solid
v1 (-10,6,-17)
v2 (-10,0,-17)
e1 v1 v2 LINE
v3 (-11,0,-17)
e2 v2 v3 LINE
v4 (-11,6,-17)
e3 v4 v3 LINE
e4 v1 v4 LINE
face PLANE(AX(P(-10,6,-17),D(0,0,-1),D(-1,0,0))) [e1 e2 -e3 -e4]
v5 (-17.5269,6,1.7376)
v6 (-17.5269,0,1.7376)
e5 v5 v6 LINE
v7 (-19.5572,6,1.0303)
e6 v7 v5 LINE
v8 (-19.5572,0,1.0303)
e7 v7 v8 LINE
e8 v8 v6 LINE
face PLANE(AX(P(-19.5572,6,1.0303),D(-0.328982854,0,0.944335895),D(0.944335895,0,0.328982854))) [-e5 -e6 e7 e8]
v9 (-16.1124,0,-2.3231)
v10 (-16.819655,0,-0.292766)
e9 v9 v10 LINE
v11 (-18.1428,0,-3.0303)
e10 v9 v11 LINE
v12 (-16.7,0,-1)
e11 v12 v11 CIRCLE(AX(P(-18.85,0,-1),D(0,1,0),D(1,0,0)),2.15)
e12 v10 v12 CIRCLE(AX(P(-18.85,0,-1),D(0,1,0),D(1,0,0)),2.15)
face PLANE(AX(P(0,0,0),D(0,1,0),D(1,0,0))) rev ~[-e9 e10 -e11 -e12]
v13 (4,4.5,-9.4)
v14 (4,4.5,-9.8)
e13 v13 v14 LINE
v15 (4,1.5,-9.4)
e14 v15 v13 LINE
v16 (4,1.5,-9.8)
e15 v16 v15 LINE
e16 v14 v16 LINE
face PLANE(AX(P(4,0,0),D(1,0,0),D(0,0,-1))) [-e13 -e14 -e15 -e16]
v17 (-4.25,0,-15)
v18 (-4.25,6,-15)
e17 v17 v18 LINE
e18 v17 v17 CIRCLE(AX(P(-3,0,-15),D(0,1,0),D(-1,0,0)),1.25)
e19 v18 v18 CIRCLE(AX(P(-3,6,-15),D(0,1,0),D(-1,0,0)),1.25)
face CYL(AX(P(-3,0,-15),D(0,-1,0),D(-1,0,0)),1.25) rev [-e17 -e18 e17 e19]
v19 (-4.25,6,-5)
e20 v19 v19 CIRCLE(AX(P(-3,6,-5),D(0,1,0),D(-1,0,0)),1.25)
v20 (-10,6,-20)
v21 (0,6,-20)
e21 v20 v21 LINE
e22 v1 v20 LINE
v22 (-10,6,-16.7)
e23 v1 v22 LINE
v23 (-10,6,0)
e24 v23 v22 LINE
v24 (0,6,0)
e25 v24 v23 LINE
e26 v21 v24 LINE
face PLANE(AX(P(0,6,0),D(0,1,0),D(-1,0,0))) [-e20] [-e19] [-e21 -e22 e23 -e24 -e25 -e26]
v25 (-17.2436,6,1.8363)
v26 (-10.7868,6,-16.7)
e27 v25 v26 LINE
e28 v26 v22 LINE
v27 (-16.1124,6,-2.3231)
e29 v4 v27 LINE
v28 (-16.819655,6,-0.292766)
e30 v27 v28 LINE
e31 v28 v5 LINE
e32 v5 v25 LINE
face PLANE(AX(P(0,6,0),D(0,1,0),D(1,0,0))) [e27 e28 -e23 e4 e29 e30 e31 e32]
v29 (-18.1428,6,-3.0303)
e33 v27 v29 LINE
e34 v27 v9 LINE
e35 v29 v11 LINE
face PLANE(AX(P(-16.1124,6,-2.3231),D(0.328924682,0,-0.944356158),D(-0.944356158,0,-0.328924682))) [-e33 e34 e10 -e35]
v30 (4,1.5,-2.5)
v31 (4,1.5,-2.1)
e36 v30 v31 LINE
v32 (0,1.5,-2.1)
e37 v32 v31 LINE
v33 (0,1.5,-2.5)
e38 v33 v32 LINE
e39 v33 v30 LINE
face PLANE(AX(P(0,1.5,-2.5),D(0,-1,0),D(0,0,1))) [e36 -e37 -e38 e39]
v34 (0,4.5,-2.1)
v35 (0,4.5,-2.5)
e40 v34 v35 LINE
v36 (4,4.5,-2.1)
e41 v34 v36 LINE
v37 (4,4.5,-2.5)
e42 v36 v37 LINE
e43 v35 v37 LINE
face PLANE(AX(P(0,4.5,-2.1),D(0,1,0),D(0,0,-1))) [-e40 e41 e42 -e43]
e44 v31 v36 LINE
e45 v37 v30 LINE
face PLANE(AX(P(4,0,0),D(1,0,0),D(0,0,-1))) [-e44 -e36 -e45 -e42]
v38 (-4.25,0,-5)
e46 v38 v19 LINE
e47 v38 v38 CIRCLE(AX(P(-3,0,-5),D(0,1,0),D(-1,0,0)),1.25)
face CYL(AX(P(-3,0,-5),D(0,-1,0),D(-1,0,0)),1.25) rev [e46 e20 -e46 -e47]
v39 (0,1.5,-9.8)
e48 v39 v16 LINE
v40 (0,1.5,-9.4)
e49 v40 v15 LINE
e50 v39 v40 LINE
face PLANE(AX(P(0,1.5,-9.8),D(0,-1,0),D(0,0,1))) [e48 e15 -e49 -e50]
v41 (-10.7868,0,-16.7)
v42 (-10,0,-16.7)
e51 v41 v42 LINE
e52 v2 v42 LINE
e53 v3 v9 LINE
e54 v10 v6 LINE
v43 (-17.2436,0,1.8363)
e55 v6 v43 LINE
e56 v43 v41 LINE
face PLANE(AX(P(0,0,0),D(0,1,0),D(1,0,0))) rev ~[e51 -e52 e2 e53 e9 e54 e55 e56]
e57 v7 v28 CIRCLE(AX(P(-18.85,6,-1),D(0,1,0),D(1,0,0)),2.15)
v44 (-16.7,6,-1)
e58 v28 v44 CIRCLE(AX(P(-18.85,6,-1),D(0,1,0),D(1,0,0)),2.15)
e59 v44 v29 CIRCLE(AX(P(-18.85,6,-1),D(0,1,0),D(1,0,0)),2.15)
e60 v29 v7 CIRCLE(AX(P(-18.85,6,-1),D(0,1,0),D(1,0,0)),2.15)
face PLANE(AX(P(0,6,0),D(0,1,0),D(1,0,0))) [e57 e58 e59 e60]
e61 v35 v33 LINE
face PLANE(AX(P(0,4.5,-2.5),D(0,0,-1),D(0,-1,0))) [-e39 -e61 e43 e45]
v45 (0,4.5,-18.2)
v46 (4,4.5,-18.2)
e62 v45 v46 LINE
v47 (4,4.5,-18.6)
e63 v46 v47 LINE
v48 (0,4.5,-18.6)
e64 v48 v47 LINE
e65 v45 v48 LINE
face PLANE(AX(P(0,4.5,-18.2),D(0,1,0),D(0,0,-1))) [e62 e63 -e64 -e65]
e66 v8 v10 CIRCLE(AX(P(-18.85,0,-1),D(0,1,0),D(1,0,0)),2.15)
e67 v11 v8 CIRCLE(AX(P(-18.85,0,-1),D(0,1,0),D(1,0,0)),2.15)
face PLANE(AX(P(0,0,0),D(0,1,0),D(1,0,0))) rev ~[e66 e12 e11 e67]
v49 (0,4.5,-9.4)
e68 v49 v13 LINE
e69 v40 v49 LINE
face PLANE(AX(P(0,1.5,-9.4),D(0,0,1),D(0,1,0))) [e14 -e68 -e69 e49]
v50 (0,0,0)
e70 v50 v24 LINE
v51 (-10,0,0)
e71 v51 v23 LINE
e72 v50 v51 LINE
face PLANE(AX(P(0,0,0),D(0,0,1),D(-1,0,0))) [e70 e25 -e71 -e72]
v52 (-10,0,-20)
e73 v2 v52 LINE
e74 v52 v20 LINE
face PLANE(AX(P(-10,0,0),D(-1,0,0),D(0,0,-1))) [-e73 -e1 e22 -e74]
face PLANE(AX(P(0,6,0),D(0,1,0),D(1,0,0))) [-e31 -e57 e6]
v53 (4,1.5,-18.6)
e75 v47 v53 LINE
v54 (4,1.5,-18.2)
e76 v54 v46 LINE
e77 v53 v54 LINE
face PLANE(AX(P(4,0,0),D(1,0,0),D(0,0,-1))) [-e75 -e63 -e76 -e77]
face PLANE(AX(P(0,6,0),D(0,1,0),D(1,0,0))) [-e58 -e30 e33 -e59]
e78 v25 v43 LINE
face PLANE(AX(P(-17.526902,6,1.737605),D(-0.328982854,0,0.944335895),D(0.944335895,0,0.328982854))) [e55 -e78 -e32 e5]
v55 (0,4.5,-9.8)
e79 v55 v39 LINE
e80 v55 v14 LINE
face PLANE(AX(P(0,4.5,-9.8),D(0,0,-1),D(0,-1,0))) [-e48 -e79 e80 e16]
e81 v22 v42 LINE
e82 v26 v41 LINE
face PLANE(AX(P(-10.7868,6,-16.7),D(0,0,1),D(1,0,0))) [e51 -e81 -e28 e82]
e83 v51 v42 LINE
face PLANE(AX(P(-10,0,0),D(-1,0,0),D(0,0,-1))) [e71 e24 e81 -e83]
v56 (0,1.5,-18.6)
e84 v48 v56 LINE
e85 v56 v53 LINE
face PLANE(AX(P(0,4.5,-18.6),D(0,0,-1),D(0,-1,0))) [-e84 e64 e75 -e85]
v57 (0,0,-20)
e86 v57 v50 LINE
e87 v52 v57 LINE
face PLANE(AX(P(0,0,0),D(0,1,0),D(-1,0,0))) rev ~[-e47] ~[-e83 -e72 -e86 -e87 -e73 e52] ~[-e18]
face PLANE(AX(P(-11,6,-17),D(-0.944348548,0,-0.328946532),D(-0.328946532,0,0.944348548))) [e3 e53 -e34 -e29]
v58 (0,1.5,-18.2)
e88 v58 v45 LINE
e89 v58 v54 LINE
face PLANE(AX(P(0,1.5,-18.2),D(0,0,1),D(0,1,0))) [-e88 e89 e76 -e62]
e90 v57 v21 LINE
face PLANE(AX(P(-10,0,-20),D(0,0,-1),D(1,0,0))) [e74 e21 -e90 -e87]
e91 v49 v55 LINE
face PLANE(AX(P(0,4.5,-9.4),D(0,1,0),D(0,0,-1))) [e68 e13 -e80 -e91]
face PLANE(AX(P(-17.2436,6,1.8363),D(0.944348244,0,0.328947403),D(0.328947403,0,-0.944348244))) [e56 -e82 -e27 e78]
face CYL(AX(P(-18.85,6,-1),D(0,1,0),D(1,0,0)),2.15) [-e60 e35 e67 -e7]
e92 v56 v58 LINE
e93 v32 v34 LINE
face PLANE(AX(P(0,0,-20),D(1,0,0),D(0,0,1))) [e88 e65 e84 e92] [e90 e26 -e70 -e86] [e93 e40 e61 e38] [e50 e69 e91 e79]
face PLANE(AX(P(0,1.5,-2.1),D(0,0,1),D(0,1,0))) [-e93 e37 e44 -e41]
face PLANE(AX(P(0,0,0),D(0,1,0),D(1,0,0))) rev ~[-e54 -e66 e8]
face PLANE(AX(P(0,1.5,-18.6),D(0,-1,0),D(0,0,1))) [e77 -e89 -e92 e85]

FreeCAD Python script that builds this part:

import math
import FreeCAD as App
import Part
import Sketcher

V = App.Vector
Q = App.Units.Quantity


def add_polygon(sketch, points):
    """Adds a closed chain of lines whose ends are joined by coincident constraints."""
    first, n = sketch.GeometryCount, len(points)
    for a, b in zip(points, points[1:] + points[:1]):
        sketch.addGeometry(Part.LineSegment(App.Vector(*a, 0), App.Vector(*b, 0)), False)
    for i in range(n):
        sketch.addConstraint(Sketcher.Constraint("Coincident", first + i, 2, first + (i + 1) % n, 1))

doc = App.newDocument("Part")
body = doc.addObject("PartDesign::Body", "Body")

# Sketch on XZ plane
sketch1 = doc.addObject("Sketcher::SketchObject", "Sketch")
body.addObject(sketch1)
sketch1.AttachmentSupport = (doc.XZ_Plane, [""])
sketch1.MapMode = "FlatFace"
add_polygon(sketch1, [(-10, 0), (0, 0), (0, -20), (-10, -20)])  # lines 0-3
sketch1.addGeometry(Part.Circle(V(-3, -15, 0), V(0, 0, 1), 1.25), False)  # 4
sketch1.addGeometry(Part.Circle(V(-3, -5, 0), V(0, 0, 1), 1.25), False)  # 5
sketch1.addConstraint([
    Sketcher.Constraint("Horizontal", 0),
    Sketcher.Constraint("Vertical", 1),
    Sketcher.Constraint("Horizontal", 2),
    Sketcher.Constraint("Vertical", 3),
    Sketcher.Constraint("Coincident", 0, 2, -1, 1),
    Sketcher.Constraint("Equal", 4, 5),
    Sketcher.Constraint("Vertical", 4, 3, 5, 3),
    Sketcher.Constraint("Diameter", 4, Q("2.5 mm")),
    Sketcher.Constraint("DistanceX", 0, 1, 0, 2, Q("10 mm")),
    Sketcher.Constraint("DistanceY", 1, 2, 1, 1, Q("20 mm")),
    Sketcher.Constraint("DistanceX", 4, 3, -1, 1, Q("3 mm")),
    Sketcher.Constraint("DistanceY", 5, 3, -1, 1, Q("5 mm")),
    Sketcher.Constraint("DistanceY", 4, 3, 5, 3, Q("10 mm")),
])
pad1 = doc.addObject("PartDesign::Pad", "Pad")
body.addObject(pad1)
pad1.Profile = sketch1
pad1.Length = 6
pad1.Reversed = True

# Sketch on XZ plane
sketch2 = doc.addObject("Sketcher::SketchObject", "Sketch001")
body.addObject(sketch2)
sketch2.AttachmentSupport = (doc.XZ_Plane, [""])
sketch2.MapMode = "FlatFace"
sketch2.AttachmentOffset = App.Placement(V(0, 0, -6), App.Rotation())
sketch2.addGeometry([
    Part.LineSegment(V(-10, -16.7, 0), V(-10, -17, 0)),  # 0
    Part.LineSegment(V(-10, -17, 0), V(-11, -17, 0)),  # 1
    Part.LineSegment(V(-11, -17, 0), V(-16.112426, -2.323109, 0)),  # 2
    Part.LineSegment(V(-16.1124, -2.3231, 0), V(-18.1428, -3.0303, 0)),  # 3
    Part.ArcOfCircle(Part.Circle(V(-18.85, -1, 0), V(0, 0, 1), 2.15), math.radians(109.204398), math.radians(289.204398)),  # 4
    Part.LineSegment(V(-19.5572, 1.0303, 0), V(-17.2436, 1.8363, 0)),  # 5
    Part.LineSegment(V(-17.2436, 1.8363, 0), V(-10.7868, -16.7, 0)),  # 6
    Part.LineSegment(V(-10.7868, -16.7, 0), V(-10, -16.7, 0)),  # 7
], False)
sketch2.addConstraint([
    Sketcher.Constraint("Coincident", 0, 2, 1, 1),
    Sketcher.Constraint("Coincident", 1, 2, 2, 1),
    Sketcher.Constraint("Coincident", 2, 2, 3, 1),
    Sketcher.Constraint("Tangent", 3, 2, 4, 2),
    Sketcher.Constraint("Tangent", 4, 1, 5, 1),
    Sketcher.Constraint("Coincident", 5, 2, 6, 1),
    Sketcher.Constraint("Coincident", 6, 2, 7, 1),
    Sketcher.Constraint("Coincident", 7, 2, 0, 1),
    Sketcher.Constraint("Vertical", 0),
    Sketcher.Constraint("Horizontal", 1),
    Sketcher.Constraint("Horizontal", 7),
    Sketcher.Constraint("Perpendicular", 2, 3),
    Sketcher.Constraint("Parallel", 3, 5),
    Sketcher.Constraint("Perpendicular", 5, 6),
    Sketcher.Constraint("DistanceX", 1, 2, 1, 1, Q("1 mm")),
    Sketcher.Constraint("Radius", 4, Q("2.15 mm")),
    Sketcher.Constraint("DistanceY", 0, 2, 0, 1, Q("0.3 mm")),
    Sketcher.Constraint("DistanceY", 4, 3, -1, 1, Q("1 mm")),
    Sketcher.Constraint("DistanceX", 4, 3, -1, 1, Q("18.85 mm")),
    Sketcher.Constraint("DistanceX", 0, 2, -1, 1, Q("10 mm")),
    Sketcher.Constraint("DistanceY", 0, 2, -1, 1, Q("17 mm")),
    Sketcher.Constraint("Distance", 3, Q("2.15 mm")),
    Sketcher.Constraint("Distance", 5, Q("2.45 mm")),
])
pad2 = doc.addObject("PartDesign::Pad", "Pad001")
body.addObject(pad2)
pad2.Profile = sketch2
pad2.Length = 6

# Sketch on YZ plane
sketch3 = doc.addObject("Sketcher::SketchObject", "Sketch002")
body.addObject(sketch3)
sketch3.AttachmentSupport = (doc.YZ_Plane, [""])
sketch3.MapMode = "FlatFace"
add_polygon(sketch3, [(4.5, -2.5), (4.5, -2.1), (1.5, -2.1), (1.5, -2.5)])  # lines 0-3
add_polygon(sketch3, [(4.5, -9.8), (4.5, -9.4), (1.5, -9.4), (1.5, -9.8)])  # lines 4-7
add_polygon(sketch3, [(4.5, -18.6), (4.5, -18.2), (1.5, -18.2), (1.5, -18.6)])  # lines 8-11
sketch3.addConstraint([
    Sketcher.Constraint("Vertical", 0),
    Sketcher.Constraint("Horizontal", 1),
    Sketcher.Constraint("Vertical", 2),
    Sketcher.Constraint("Horizontal", 3),
    Sketcher.Constraint("Vertical", 4),
    Sketcher.Constraint("Horizontal", 5),
    Sketcher.Constraint("Vertical", 6),
    Sketcher.Constraint("Horizontal", 7),
    Sketcher.Constraint("Vertical", 8),
    Sketcher.Constraint("Horizontal", 9),
    Sketcher.Constraint("Vertical", 10),
    Sketcher.Constraint("Horizontal", 11),
    Sketcher.Constraint("Vertical", 3, 2, 4, 2),
    Sketcher.Constraint("Vertical", 2, 2, 5, 2),
    Sketcher.Constraint("Vertical", 7, 2, 8, 2),
    Sketcher.Constraint("Vertical", 6, 2, 9, 2),
    Sketcher.Constraint("Equal", 2, 4),
    Sketcher.Constraint("Equal", 6, 8),
    Sketcher.Constraint("DistanceX", 1, 2, 1, 1, Q("3 mm")),
    Sketcher.Constraint("DistanceY", 0, 1, 0, 2, Q("0.4 mm")),
    Sketcher.Constraint("DistanceX", -1, 1, 1, 2, Q("1.5 mm")),
    Sketcher.Constraint("DistanceY", 2, 2, -1, 1, Q("2.5 mm")),
    Sketcher.Constraint("DistanceY", 6, 2, 1, 2, Q("7.7 mm")),
    Sketcher.Constraint("DistanceY", 8, 2, -1, 1, Q("18.2 mm")),
])
pad3 = doc.addObject("PartDesign::Pad", "Pad002")
body.addObject(pad3)
pad3.Profile = sketch3
pad3.Length = 4

doc.recompute()
